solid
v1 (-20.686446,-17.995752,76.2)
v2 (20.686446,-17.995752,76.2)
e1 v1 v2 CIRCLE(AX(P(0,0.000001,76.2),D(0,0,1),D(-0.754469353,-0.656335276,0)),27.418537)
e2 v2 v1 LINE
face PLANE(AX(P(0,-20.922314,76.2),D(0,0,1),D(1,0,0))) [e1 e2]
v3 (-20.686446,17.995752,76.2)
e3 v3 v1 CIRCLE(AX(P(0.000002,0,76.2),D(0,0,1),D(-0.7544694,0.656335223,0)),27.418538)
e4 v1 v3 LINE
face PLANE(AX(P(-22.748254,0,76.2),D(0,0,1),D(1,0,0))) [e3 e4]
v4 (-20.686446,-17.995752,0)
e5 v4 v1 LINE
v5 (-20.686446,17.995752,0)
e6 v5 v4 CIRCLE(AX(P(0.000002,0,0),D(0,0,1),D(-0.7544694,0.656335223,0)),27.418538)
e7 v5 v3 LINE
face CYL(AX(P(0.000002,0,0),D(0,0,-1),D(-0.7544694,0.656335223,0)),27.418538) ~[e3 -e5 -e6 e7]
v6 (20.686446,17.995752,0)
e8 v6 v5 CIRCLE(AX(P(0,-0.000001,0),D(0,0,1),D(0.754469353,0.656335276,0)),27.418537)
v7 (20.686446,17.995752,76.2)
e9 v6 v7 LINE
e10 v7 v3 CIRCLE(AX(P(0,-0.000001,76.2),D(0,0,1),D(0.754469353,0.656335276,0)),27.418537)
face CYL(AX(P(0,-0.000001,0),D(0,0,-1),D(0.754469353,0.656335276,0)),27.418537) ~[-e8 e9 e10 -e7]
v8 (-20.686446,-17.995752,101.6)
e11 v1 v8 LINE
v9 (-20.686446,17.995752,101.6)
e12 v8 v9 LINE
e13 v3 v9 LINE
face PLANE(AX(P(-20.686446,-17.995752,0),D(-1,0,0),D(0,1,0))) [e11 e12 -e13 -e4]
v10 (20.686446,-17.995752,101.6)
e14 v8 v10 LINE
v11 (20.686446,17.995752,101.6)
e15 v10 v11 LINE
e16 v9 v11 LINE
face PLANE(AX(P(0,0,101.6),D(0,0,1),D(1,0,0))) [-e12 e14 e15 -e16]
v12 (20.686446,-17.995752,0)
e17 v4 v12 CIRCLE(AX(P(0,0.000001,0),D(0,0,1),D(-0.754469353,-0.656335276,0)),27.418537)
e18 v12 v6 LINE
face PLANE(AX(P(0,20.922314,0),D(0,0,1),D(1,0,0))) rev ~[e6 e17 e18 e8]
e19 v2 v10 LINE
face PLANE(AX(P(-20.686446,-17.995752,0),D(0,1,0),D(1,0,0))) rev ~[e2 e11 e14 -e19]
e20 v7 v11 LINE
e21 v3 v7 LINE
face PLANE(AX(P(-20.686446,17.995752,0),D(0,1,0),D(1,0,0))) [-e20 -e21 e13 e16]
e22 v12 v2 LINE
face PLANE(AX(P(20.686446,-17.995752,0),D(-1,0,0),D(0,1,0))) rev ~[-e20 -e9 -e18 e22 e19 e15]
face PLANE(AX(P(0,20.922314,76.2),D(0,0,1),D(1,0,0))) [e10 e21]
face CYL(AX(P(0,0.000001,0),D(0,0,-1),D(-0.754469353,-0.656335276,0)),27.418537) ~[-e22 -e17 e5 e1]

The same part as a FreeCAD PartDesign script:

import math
import FreeCAD as App
import Part
import Sketcher
Q = App.Units.Quantity

doc = App.newDocument("Part")
body = doc.addObject("PartDesign::Body", "Body")

# Sketch on XY plane
sketch1 = body.newObject("Sketcher::SketchObject", "Sketch")
sketch1.AttachmentSupport = (doc.getObject("XY_Plane"), [""])
sketch1.MapMode = "FlatFace"
sketch1.addGeometry([
    Part.LineSegment(App.Vector(-21, 18, 0), App.Vector(-21, -18, 0)),
    Part.LineSegment(App.Vector(-21, -18, 0), App.Vector(21, -18, 0)),
    Part.LineSegment(App.Vector(21, -18, 0), App.Vector(21, 18, 0)),
    Part.LineSegment(App.Vector(21, 18, 0), App.Vector(-21, 18, 0)),
], False)
sketch1.addConstraint([
    Sketcher.Constraint("Coincident", 0, 2, 1, 1),
    Sketcher.Constraint("Coincident", 1, 2, 2, 1),
    Sketcher.Constraint("Coincident", 2, 2, 3, 1),
    Sketcher.Constraint("Coincident", 3, 2, 0, 1),
    Sketcher.Constraint("Vertical", 0),
    Sketcher.Constraint("Horizontal", 1),
    Sketcher.Constraint("Vertical", 2),
    Sketcher.Constraint("Horizontal", 3),
    Sketcher.Constraint("Symmetric", 0, 2, 2, 2, -1, 1),
    Sketcher.Constraint("DistanceX", 1, 1, 1, 2, 41.372892),
    Sketcher.Constraint("DistanceY", 0, 2, 0, 1, 35.991504),
])
pad1 = body.newObject("PartDesign::Pad", "Pad")
pad1.Profile = sketch1
pad1.Length = Q("4 in")

# Sketch on XY plane
sketch2 = body.newObject("Sketcher::SketchObject", "Sketch001")
sketch2.AttachmentSupport = (doc.getObject("XY_Plane"), [""])
sketch2.MapMode = "FlatFace"
sketch2.addGeometry([
    Part.LineSegment(App.Vector(-21, 18, 0), App.Vector(21, 18, 0)),  # 0
    Part.ArcOfCircle(Part.Circle(App.Vector(0, 0, 0), App.Vector(0, 0, 1), 27), math.radians(41), math.radians(139)),  # 1
    Part.LineSegment(App.Vector(-21, -18, 0), App.Vector(-21, 18, 0)),  # 2
    Part.ArcOfCircle(Part.Circle(App.Vector(0, 0, 0), App.Vector(0, 0, 1), 27), math.radians(139), math.radians(221)),  # 3
    Part.ArcOfCircle(Part.Circle(App.Vector(0, 0, 0), App.Vector(0, 0, 1), 27), math.radians(-139), math.radians(-41)),  # 4
    Part.LineSegment(App.Vector(21, -18, 0), App.Vector(-21, -18, 0)),  # 5
], False)
sketch2.addConstraint([
    Sketcher.Constraint("Coincident", 0, 1, 1, 2),
    Sketcher.Constraint("Coincident", 1, 1, 0, 2),
    Sketcher.Constraint("Coincident", 2, 1, 3, 2),
    Sketcher.Constraint("Coincident", 3, 1, 2, 2),
    Sketcher.Constraint("Coincident", 4, 1, 5, 2),
    Sketcher.Constraint("Coincident", 5, 1, 4, 2),
    Sketcher.Constraint("Horizontal", 0),
    Sketcher.Constraint("Vertical", 2),
    Sketcher.Constraint("Horizontal", 5),
    Sketcher.Constraint("Coincident", 1, 3, -1, 1),
    Sketcher.Constraint("Coincident", 3, 3, -1, 1),
    Sketcher.Constraint("Coincident", 4, 3, -1, 1),
    Sketcher.Constraint("Coincident", 3, 1, 0, 1),
    Sketcher.Constraint("Coincident", 4, 1, 2, 1),
    Sketcher.Constraint("Radius", 1, 27.418537),
    Sketcher.Constraint("DistanceX", 0, 1, 0, 2, 41.372892),
])
pad2 = body.newObject("PartDesign::Pad", "Pad001")
pad2.Profile = sketch2
pad2.Length = Q("3 in")

doc.recompute()
